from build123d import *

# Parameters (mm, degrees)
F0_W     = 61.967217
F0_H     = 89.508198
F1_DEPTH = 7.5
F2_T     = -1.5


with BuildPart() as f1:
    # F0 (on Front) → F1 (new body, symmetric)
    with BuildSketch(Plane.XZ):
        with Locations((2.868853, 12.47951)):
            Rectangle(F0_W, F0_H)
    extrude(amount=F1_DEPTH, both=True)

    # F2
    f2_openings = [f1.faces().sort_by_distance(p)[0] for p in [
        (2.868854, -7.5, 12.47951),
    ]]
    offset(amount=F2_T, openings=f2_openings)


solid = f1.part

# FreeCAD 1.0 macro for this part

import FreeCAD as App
import Part
import Sketcher
Q = App.Units.Quantity


def faces_at(feature, points):
    """Names of the faces that lie closest to the given points."""
    faces = feature.Shape.Faces
    near = lambda p: min(range(len(faces)), key=lambda i: faces[i].distToShape(Part.Vertex(*p))[0])
    return sorted({f"Face{near(p) + 1}" for p in points})


def add_polygon(sketch, points):
    """Adds a closed chain of lines whose ends are joined by coincident constraints."""
    first, n = sketch.GeometryCount, len(points)
    for a, b in zip(points, points[1:] + points[:1]):
        sketch.addGeometry(Part.LineSegment(App.Vector(*a, 0), App.Vector(*b, 0)), False)
    for i in range(n):
        sketch.addConstraint(Sketcher.Constraint("Coincident", first + i, 2, first + (i + 1) % n, 1))

doc = App.newDocument("Part")
body = doc.addObject("PartDesign::Body", "Body")

# Sketch on XZ plane
sketch1 = doc.addObject("Sketcher::SketchObject", "Sketch")
body.addObject(sketch1)
sketch1.AttachmentSupport = (doc.XZ_Plane, [""])
sketch1.MapMode = "FlatFace"
add_polygon(sketch1, [(-28, 57), (-28, -32), (34, -32), (34, 57)])  # lines 0-3
sketch1.addConstraint(Sketcher.Constraint("Vertical", 0))
sketch1.addConstraint(Sketcher.Constraint("Horizontal", 1))
sketch1.addConstraint(Sketcher.Constraint("Vertical", 2))
sketch1.addConstraint(Sketcher.Constraint("Horizontal", 3))
sketch1.addConstraint(Sketcher.Constraint("DistanceX", 1, 1, 1, 2, Q("61.967217 mm")))
sketch1.addConstraint(Sketcher.Constraint("DistanceY", 0, 2, 0, 1, Q("89.508198 mm")))
sketch1.addConstraint(Sketcher.Constraint("DistanceY", 0, 2, -1, 1, Q("32.274589 mm")))
sketch1.addConstraint(Sketcher.Constraint("DistanceX", -1, 1, 1, 2, Q("33.852461 mm")))
pad1 = doc.addObject("PartDesign::Pad", "Pad")
body.addObject(pad1)
pad1.Profile = sketch1
pad1.Length = 15
pad1.Midplane = True
doc.recompute()

thickness = doc.addObject("PartDesign::Thickness", "Thickness")
body.addObject(thickness)
thickness.Base = (pad1, faces_at(pad1, [(2.869, -7.5, 12.48)]))
thickness.Value = 1.5
thickness.Reversed = True
thickness.Join = "Arc"

doc.recompute()
